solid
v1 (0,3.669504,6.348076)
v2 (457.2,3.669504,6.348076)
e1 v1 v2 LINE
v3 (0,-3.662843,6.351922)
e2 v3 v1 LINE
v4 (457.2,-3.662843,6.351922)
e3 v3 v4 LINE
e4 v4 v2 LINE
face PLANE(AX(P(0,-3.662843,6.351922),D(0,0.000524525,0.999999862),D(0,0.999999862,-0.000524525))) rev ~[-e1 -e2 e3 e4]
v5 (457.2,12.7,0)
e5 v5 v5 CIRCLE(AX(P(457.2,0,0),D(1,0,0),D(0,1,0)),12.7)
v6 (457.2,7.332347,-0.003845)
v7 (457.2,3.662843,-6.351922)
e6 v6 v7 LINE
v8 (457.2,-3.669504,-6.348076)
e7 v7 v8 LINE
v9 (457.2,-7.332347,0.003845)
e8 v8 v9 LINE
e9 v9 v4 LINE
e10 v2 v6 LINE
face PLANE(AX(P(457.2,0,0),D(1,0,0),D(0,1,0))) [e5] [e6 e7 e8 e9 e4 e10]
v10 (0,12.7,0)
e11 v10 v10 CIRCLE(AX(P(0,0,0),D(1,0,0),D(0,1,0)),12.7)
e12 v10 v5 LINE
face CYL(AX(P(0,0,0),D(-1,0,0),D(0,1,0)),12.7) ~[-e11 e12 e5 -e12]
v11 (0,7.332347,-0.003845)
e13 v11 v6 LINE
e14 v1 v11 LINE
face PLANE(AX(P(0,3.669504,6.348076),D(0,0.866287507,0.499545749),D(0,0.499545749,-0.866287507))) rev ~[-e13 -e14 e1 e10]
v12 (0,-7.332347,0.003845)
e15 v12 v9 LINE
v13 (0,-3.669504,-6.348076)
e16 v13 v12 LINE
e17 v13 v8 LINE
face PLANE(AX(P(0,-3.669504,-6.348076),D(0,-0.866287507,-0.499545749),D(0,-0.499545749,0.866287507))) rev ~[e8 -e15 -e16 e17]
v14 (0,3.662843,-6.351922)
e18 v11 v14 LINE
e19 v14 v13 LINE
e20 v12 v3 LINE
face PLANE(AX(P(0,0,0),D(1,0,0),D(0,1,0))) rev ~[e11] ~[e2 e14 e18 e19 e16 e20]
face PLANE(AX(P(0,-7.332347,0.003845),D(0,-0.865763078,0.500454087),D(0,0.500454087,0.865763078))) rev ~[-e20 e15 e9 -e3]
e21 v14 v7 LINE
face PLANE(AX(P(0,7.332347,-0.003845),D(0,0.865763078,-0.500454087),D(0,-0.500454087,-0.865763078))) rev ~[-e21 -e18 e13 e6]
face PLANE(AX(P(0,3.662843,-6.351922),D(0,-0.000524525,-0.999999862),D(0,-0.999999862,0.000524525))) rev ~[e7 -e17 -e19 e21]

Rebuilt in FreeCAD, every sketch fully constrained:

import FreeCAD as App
import Part
import Sketcher
Q = App.Units.Quantity

doc = App.newDocument("Part")
params = doc.addObject("Spreadsheet::Sheet", "Params")
for row, (alias, value) in enumerate([
    ("sketch1_diameter", "1 in"),
    ("pad1_length", "18 in"),
], start=1):
    params.set(f"A{row}", alias)
    params.set(f"B{row}", "=" + value)
    params.setAlias(f"B{row}", alias)

body = doc.addObject("PartDesign::Body", "Body")

# Sketch on YZ plane
sketch1 = body.newObject("Sketcher::SketchObject", "Sketch")
sketch1.AttachmentSupport = (doc.getObject("YZ_Plane"), [""])
sketch1.MapMode = "FlatFace"
sketch1.addGeometry(Part.Circle(App.Vector(0, 0, 0), App.Vector(0, 0, 1), 13), False)
sketch1.addGeometry(Part.LineSegment(App.Vector(-7, 0, 0), App.Vector(-4, 6, 0)), False)
sketch1.addGeometry(Part.LineSegment(App.Vector(-4, 6, 0), App.Vector(4, 6, 0)), False)
sketch1.addGeometry(Part.LineSegment(App.Vector(4, 6, 0), App.Vector(7, 0, 0)), False)
sketch1.addGeometry(Part.LineSegment(App.Vector(7, 0, 0), App.Vector(4, -6, 0)), False)
sketch1.addGeometry(Part.LineSegment(App.Vector(4, -6, 0), App.Vector(-4, -6, 0)), False)
sketch1.addGeometry(Part.LineSegment(App.Vector(-4, -6, 0), App.Vector(-7, 0, 0)), False)
sketch1.addConstraint(Sketcher.Constraint("Coincident", 1, 2, 2, 1))
sketch1.addConstraint(Sketcher.Constraint("Coincident", 2, 2, 3, 1))
sketch1.addConstraint(Sketcher.Constraint("Coincident", 3, 2, 4, 1))
sketch1.addConstraint(Sketcher.Constraint("Coincident", 4, 2, 5, 1))
sketch1.addConstraint(Sketcher.Constraint("Coincident", 5, 2, 6, 1))
sketch1.addConstraint(Sketcher.Constraint("Coincident", 6, 2, 1, 1))
sketch1.addConstraint(Sketcher.Constraint("Coincident", 0, 3, -1, 1))
sketch1.addConstraint(Sketcher.Constraint("Symmetric", 1, 2, 4, 2, -1, 1))
sketch1.addConstraint(Sketcher.Constraint("Symmetric", 2, 2, 5, 2, -1, 1))
sketch1.addConstraint(Sketcher.Constraint("Symmetric", 3, 2, 6, 2, -1, 1))
sketch1.addConstraint(Sketcher.Constraint("Equal", 1, 2))
sketch1.addConstraint(Sketcher.Constraint("Equal", 2, 3))
sketch1.addConstraint(Sketcher.Constraint("Diameter", 0, Q("1 in")))
sketch1.addConstraint(Sketcher.Constraint("DistanceY", 4, 2, 2, 2, Q("0.4999999 in")))
sketch1.addConstraint(Sketcher.Constraint("Distance", 1, Q("7.332349 mm")))
sketch1.addConstraint(Sketcher.Constraint("DistanceY", 3, 2, 2, 2, Q("6.351921 mm")))
sketch1.addConstraint(Sketcher.Constraint("DistanceY", 5, 2, 3, 2, Q("6.344231 mm")))
sketch1.setExpression("Constraints[12]", "Params.sketch1_diameter")
pad1 = body.newObject("PartDesign::Pad", "Pad")
pad1.Profile = sketch1
pad1.setExpression("Length", "Params.pad1_length")

doc.recompute()
